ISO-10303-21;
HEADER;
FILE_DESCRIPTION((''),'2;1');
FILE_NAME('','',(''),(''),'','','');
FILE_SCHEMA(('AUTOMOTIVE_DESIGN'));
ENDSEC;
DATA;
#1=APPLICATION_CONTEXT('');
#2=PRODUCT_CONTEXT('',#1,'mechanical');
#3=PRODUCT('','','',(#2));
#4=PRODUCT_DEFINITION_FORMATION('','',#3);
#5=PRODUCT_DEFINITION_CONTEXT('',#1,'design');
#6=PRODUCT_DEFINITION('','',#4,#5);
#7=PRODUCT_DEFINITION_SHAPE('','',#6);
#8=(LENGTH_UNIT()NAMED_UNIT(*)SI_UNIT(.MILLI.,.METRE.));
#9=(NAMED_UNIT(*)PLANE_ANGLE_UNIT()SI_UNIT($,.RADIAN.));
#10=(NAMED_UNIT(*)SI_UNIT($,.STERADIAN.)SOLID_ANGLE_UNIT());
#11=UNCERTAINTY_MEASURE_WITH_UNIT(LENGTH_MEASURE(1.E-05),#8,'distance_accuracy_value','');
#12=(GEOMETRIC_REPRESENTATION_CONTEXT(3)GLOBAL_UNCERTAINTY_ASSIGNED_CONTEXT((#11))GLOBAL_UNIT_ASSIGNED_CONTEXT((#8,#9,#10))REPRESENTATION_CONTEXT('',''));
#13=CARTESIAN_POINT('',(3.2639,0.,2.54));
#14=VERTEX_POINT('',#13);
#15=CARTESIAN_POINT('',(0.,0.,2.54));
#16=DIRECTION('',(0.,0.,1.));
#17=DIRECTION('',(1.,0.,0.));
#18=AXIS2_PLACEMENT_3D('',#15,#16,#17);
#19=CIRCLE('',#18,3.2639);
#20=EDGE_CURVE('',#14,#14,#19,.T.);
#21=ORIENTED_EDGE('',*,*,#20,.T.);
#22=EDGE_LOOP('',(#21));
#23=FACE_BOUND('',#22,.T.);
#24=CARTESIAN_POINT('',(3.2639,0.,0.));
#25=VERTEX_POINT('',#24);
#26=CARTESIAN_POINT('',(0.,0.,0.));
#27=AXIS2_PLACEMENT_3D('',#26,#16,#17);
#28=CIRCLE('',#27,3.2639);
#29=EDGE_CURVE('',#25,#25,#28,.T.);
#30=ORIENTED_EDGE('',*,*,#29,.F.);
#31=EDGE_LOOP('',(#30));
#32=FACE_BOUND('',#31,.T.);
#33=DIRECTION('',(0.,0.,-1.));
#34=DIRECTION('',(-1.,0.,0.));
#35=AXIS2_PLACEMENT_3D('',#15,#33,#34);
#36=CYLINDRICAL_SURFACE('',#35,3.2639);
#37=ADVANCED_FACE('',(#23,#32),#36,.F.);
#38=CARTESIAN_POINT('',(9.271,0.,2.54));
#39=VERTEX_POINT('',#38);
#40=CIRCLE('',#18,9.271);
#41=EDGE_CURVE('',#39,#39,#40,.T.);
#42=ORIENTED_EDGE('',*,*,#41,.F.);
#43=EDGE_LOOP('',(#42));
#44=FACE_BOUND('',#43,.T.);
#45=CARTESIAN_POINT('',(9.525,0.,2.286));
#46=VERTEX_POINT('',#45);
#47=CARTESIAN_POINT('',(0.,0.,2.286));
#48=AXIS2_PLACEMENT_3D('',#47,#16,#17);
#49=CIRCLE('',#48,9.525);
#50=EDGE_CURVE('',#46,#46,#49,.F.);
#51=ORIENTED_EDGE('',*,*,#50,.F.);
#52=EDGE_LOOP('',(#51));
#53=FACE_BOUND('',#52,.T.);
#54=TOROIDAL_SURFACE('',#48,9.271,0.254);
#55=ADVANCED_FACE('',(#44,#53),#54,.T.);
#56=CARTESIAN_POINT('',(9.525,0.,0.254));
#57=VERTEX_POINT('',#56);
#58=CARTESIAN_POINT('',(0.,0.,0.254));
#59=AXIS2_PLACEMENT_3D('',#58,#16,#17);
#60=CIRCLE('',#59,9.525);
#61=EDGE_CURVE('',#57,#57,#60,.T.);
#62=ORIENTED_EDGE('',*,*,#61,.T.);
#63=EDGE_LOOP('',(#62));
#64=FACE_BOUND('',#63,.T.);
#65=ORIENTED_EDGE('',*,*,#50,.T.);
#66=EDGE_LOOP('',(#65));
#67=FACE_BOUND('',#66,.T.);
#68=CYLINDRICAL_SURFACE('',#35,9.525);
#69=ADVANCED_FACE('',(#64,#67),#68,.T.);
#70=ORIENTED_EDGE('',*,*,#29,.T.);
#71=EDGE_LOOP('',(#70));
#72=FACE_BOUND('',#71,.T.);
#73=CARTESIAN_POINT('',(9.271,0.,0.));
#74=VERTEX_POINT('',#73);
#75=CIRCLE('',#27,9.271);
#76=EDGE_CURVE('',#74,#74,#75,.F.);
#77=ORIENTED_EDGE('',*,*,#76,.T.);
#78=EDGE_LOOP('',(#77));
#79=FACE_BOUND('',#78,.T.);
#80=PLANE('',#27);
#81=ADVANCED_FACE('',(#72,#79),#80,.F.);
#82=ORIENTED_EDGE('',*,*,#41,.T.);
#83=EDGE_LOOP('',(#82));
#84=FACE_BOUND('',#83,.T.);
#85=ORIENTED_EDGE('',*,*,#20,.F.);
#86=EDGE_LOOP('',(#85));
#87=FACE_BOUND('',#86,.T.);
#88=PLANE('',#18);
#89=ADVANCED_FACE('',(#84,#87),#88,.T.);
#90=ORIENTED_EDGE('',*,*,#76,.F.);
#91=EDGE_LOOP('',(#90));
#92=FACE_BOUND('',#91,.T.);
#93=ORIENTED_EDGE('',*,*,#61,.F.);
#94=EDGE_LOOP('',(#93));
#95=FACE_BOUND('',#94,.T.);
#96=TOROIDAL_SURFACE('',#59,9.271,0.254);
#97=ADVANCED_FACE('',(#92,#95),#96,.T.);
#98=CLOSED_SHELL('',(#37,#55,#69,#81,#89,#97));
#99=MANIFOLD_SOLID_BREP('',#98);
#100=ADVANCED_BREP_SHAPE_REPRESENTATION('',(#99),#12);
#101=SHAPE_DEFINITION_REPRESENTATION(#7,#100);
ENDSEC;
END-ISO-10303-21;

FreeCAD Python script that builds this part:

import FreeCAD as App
import Part
import Sketcher
from FreeCAD import Vector
Q = App.Units.Quantity


def edges_at(feature, points):
    """Names of the edges that pass closest to the given points."""
    edges = feature.Shape.Edges
    near = lambda p: min(range(len(edges)), key=lambda i: edges[i].distToShape(Part.Vertex(*p))[0])
    return sorted({f"Edge{near(p) + 1}" for p in points})

doc = App.newDocument("Part")
body = doc.addObject("PartDesign::Body", "Body")

# Sketch on XY plane
sketch1 = doc.addObject("Sketcher::SketchObject", "Sketch")
body.addObject(sketch1)
sketch1.AttachmentSupport = (doc.XY_Plane, [""])
sketch1.MapMode = "FlatFace"
sketch1.addGeometry([
    Part.Circle(Vector(0, 0, 0), Vector(0, 0, 1), 9.5),
    Part.Circle(Vector(0, 0, 0), Vector(0, 0, 1), 3.3),
], False)
sketch1.addConstraint([
    Sketcher.Constraint("Coincident", 0, 3, -1, 1),
    Sketcher.Constraint("Coincident", 1, 3, -1, 1),
    Sketcher.Constraint("Diameter", 0, Q("0.75 in")),
    Sketcher.Constraint("Diameter", 1, Q("0.257 in")),
])
pad1 = doc.addObject("PartDesign::Pad", "Pad")
body.addObject(pad1)
pad1.Profile = sketch1
pad1.Length = Q("0.1 in")
doc.recompute()

fillet = doc.addObject("PartDesign::Fillet", "Fillet")
body.addObject(fillet)
fillet.Base = (pad1, edges_at(pad1, [(-9.525, 0, 0), (-9.525, 0, 2.54)]))
fillet.Radius = Q("0.01 in")

doc.recompute()
